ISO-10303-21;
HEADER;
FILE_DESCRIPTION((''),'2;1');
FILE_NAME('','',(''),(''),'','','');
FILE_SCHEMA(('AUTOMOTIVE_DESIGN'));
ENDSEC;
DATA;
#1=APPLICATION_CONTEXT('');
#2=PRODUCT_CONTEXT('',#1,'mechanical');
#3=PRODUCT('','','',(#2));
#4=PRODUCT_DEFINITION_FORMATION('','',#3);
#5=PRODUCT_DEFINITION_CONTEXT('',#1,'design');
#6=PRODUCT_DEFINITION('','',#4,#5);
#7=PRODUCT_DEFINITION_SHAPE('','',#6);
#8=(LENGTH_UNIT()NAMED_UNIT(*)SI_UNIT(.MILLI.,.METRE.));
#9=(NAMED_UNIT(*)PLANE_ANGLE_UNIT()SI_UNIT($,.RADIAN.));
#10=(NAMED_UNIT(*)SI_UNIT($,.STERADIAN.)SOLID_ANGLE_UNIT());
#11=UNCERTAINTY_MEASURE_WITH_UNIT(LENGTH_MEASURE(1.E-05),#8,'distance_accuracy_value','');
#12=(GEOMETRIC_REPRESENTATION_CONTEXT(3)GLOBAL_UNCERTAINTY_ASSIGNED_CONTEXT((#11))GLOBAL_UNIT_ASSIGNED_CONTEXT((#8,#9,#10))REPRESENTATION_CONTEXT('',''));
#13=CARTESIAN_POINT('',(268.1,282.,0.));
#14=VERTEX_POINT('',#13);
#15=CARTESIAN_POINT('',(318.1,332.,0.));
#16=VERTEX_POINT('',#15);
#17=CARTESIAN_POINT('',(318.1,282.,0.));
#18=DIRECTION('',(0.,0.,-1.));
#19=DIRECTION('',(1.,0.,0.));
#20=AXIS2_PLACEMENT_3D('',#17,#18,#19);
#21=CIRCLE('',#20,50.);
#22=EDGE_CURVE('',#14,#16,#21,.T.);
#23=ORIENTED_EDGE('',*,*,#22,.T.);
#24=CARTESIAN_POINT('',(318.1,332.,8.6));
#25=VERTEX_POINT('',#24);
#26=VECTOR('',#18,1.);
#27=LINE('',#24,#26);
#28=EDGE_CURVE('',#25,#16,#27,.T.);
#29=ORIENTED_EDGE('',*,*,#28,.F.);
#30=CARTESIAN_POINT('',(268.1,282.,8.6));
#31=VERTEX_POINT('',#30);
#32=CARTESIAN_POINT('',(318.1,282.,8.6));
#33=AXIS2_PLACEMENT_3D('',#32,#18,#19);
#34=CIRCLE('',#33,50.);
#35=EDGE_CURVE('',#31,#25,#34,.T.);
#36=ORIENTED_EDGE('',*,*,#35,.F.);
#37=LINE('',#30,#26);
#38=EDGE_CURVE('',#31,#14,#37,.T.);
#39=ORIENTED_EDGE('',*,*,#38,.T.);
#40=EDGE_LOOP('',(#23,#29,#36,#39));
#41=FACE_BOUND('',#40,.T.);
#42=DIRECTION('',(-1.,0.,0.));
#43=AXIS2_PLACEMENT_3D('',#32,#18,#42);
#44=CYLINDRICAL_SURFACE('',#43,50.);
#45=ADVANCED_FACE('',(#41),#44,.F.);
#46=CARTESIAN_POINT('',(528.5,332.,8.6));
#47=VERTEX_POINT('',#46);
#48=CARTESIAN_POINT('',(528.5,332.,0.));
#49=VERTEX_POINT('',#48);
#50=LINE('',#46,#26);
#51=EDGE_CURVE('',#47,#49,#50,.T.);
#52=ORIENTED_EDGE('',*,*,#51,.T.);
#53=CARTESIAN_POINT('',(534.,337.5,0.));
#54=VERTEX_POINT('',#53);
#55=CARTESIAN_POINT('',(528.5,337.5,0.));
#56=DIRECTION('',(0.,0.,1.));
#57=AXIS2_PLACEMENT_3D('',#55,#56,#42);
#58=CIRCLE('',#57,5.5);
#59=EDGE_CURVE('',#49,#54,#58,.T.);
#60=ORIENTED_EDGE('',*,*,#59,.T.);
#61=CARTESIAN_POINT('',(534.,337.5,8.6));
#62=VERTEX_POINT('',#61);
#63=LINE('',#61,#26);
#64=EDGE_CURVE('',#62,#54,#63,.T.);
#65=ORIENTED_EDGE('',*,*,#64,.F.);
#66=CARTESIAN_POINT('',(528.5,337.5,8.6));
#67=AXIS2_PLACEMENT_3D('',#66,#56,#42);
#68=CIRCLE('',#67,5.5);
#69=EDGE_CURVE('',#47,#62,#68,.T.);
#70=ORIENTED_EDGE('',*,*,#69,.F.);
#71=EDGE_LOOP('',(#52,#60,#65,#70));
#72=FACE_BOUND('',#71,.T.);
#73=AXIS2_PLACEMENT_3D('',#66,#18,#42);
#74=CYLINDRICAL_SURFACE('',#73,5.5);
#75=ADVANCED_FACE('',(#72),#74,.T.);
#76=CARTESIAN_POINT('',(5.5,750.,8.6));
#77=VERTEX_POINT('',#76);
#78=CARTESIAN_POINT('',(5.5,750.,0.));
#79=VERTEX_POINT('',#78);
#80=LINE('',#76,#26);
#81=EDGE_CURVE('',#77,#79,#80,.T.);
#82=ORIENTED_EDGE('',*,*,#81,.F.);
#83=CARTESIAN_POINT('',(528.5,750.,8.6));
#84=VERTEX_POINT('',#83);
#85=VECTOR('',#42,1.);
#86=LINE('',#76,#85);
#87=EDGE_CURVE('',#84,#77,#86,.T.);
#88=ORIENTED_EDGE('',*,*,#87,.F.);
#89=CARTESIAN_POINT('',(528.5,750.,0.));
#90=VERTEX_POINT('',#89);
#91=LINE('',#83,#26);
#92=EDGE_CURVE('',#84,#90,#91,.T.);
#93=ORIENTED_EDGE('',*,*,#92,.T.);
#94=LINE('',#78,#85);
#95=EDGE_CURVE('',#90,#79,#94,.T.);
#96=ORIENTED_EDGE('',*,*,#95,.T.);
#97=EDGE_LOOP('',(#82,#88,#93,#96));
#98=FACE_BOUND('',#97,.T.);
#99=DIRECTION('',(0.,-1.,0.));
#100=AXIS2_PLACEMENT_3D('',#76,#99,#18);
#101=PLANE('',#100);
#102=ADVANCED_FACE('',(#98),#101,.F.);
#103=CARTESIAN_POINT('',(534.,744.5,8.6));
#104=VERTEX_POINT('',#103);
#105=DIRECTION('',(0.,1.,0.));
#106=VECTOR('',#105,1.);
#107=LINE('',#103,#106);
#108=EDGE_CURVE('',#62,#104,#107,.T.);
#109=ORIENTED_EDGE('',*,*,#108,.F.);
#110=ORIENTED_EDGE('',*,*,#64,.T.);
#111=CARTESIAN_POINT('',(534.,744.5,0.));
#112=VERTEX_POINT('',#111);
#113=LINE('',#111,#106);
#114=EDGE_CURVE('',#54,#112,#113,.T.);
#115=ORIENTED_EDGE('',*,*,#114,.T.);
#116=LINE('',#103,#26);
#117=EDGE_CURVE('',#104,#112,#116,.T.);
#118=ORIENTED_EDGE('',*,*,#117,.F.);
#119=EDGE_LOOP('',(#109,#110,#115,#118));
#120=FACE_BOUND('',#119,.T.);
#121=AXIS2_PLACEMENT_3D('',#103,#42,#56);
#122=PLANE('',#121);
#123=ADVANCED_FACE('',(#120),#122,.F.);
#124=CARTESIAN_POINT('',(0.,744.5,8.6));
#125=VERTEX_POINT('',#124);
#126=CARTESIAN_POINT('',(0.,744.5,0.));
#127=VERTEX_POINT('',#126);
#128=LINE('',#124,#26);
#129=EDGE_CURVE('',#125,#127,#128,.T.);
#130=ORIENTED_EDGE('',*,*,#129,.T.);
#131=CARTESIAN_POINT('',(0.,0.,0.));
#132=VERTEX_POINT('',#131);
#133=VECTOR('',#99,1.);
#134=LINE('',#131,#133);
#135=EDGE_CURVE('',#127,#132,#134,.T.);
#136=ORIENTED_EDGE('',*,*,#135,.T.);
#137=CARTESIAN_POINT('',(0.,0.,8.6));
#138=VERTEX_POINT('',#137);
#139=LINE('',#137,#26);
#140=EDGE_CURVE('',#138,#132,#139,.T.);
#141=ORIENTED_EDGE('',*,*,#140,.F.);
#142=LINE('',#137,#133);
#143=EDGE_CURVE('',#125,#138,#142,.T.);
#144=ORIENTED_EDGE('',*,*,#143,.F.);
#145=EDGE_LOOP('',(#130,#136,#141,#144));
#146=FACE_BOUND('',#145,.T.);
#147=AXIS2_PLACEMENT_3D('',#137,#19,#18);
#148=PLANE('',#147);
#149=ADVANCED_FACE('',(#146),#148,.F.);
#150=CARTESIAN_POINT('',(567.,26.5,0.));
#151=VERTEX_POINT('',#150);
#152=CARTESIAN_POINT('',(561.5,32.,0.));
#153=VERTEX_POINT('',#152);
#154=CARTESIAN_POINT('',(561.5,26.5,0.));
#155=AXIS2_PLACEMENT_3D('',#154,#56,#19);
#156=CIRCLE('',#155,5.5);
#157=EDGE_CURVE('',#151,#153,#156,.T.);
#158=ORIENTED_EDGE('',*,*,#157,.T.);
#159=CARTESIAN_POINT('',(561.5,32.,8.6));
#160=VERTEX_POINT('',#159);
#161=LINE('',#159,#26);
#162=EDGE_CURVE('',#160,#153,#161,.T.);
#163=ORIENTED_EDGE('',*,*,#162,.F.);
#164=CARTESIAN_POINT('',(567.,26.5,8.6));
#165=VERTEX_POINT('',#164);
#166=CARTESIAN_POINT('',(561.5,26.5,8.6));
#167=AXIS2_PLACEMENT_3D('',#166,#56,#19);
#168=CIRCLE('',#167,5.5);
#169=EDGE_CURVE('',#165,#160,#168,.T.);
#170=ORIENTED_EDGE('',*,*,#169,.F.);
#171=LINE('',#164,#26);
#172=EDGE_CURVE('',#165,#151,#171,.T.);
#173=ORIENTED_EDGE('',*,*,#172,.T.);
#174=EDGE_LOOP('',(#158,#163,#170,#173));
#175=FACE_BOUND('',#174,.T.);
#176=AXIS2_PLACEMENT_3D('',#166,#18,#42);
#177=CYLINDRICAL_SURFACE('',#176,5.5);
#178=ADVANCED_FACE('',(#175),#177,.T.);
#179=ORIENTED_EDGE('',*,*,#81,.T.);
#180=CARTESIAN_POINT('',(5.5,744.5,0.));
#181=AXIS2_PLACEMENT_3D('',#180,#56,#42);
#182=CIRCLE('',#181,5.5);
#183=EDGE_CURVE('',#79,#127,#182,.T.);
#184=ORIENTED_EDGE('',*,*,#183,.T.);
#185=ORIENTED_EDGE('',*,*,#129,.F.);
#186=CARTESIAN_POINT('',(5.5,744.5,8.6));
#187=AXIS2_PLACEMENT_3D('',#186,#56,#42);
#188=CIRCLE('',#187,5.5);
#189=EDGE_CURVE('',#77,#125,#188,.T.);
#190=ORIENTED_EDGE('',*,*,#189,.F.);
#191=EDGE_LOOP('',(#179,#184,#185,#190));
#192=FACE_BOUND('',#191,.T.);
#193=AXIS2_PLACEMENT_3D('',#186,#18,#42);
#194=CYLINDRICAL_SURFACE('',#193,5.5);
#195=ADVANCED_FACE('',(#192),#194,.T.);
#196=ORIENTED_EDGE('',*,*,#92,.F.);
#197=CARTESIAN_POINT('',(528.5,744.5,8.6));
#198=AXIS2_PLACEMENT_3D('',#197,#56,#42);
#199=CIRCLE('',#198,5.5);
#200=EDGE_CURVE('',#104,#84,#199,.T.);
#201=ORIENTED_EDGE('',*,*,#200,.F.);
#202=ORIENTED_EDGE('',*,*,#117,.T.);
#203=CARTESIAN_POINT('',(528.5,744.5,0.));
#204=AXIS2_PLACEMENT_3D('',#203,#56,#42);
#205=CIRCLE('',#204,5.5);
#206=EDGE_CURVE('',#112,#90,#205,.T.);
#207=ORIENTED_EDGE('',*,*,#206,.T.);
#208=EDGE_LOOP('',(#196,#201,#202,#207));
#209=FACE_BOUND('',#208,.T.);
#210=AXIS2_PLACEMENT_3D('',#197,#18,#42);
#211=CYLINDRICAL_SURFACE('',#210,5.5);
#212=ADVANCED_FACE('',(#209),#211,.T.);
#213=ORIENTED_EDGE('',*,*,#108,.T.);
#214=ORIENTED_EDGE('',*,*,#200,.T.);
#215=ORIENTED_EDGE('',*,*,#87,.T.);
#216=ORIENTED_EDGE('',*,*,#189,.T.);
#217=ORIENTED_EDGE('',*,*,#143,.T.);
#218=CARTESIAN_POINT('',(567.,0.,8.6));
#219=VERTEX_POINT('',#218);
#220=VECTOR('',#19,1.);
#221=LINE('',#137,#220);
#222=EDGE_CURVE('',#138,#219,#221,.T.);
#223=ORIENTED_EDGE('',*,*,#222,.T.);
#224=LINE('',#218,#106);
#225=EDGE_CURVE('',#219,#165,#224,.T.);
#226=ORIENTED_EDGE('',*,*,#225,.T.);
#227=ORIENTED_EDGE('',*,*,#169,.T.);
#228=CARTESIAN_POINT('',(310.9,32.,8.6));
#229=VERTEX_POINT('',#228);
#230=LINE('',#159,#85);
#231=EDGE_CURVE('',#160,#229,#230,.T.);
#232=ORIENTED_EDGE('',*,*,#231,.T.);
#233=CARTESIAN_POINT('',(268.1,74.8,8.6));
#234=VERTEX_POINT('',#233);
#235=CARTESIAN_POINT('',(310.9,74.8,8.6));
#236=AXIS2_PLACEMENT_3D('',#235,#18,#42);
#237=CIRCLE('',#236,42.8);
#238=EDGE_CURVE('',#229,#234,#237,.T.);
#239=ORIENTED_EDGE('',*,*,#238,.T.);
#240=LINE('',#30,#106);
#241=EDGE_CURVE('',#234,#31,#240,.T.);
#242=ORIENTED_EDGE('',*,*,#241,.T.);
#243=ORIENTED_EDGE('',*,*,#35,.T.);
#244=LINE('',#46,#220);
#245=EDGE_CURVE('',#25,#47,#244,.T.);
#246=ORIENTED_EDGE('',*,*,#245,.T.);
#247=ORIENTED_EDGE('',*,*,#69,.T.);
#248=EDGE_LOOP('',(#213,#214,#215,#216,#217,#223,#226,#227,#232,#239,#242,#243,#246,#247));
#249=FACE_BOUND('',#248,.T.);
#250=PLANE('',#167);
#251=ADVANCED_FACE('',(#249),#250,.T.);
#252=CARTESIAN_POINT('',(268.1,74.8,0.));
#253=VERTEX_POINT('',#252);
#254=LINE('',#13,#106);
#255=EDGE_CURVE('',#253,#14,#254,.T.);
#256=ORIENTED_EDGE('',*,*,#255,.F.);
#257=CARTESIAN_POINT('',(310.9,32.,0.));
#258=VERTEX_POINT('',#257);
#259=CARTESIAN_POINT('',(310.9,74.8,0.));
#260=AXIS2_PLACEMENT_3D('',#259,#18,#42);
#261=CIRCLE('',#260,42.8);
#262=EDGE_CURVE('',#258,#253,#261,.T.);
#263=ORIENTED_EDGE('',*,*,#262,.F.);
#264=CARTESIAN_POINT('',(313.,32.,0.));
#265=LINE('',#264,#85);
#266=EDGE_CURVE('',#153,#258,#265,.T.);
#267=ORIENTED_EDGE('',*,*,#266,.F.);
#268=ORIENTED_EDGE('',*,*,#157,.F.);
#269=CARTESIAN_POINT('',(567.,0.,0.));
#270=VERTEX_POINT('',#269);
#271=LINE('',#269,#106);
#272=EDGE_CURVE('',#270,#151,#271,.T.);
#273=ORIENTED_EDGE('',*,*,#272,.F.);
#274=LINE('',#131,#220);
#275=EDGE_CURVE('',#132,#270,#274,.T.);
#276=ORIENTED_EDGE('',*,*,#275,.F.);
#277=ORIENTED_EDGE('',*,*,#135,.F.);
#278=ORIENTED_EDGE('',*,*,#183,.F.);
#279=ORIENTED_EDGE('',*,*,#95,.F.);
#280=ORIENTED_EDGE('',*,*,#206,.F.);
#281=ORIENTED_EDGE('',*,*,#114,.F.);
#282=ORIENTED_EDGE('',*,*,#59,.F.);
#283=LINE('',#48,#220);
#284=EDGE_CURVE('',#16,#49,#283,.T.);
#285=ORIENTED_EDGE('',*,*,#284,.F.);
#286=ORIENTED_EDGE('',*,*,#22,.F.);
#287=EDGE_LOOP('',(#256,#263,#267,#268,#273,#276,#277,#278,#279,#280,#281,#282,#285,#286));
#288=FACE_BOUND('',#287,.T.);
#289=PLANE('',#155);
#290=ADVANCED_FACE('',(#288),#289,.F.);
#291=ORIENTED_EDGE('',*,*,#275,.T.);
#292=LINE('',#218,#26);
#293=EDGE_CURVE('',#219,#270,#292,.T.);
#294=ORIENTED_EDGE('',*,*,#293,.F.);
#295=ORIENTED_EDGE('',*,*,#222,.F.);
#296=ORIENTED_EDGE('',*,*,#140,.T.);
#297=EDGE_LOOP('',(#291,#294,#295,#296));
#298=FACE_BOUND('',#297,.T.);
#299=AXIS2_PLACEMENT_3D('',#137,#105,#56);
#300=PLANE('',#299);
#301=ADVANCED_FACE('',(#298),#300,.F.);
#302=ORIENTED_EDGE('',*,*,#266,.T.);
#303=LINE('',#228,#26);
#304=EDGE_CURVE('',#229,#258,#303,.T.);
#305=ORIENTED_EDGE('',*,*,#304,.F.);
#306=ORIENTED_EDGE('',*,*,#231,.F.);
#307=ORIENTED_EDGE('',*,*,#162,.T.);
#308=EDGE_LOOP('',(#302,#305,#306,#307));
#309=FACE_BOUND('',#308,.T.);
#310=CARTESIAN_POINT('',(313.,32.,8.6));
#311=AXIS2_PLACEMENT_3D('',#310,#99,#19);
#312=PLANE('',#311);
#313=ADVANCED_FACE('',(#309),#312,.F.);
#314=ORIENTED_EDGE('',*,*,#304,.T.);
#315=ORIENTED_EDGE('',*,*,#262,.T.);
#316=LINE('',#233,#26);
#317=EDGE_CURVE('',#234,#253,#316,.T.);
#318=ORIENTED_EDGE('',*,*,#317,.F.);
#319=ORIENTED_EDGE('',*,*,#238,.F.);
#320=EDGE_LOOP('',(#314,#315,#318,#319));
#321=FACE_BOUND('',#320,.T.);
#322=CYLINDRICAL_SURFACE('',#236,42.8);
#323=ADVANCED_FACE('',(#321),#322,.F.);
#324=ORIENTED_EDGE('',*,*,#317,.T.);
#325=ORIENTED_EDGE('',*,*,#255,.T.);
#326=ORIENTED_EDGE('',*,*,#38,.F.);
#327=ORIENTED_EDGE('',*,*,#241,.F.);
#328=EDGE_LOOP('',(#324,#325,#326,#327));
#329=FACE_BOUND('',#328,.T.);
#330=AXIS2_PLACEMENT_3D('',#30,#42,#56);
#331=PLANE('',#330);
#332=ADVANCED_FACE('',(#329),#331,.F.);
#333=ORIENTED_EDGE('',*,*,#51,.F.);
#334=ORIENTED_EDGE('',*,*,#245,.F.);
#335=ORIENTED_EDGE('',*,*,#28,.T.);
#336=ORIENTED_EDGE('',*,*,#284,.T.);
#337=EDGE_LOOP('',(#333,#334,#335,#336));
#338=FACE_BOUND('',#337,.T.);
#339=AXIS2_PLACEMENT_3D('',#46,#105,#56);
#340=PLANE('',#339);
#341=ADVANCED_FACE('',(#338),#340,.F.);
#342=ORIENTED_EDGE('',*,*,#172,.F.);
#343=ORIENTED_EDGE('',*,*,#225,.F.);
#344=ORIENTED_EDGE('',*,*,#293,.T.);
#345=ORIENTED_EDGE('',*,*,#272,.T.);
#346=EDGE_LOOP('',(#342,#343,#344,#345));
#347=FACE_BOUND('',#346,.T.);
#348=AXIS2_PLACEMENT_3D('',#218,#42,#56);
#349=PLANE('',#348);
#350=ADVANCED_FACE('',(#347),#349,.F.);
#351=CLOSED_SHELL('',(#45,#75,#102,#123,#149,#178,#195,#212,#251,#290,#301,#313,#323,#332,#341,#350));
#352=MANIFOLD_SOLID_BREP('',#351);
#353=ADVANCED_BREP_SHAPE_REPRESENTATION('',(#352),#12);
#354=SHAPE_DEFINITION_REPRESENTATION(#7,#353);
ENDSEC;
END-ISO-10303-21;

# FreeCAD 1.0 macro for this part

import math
import FreeCAD as App
import Part
import Sketcher
Q = App.Units.Quantity

doc = App.newDocument("Part")
body = doc.addObject("PartDesign::Body", "Body")

# Sketch on XY plane
sketch1 = body.newObject("Sketcher::SketchObject", "Sketch")
sketch1.AttachmentSupport = (doc.getObject("XY_Plane"), [""])
sketch1.MapMode = "FlatFace"
sketch1.addGeometry([
    Part.LineSegment(App.Vector(0, 744.5, 0), App.Vector(0, 0, 0)),  # 0
    Part.LineSegment(App.Vector(0, 0, 0), App.Vector(567, 0, 0)),  # 1
    Part.LineSegment(App.Vector(567, 0, 0), App.Vector(567, 26.5, 0)),  # 2
    Part.ArcOfCircle(Part.Circle(App.Vector(561.5, 26.5, 0), App.Vector(0, 0, 1), 5.5), math.radians(0), math.radians(90)),  # 3
    Part.LineSegment(App.Vector(561.5, 32, 0), App.Vector(310.9, 32, 0)),  # 4
    Part.ArcOfCircle(Part.Circle(App.Vector(310.9, 74.8, 0), App.Vector(0, 0, 1), 42.8), math.radians(180), math.radians(270)),  # 5
    Part.LineSegment(App.Vector(268.1, 74.8, 0), App.Vector(268.1, 282, 0)),  # 6
    Part.ArcOfCircle(Part.Circle(App.Vector(318.1, 282, 0), App.Vector(0, 0, 1), 50), math.radians(90), math.radians(180)),  # 7
    Part.LineSegment(App.Vector(318.1, 332, 0), App.Vector(528.5, 332, 0)),  # 8
    Part.ArcOfCircle(Part.Circle(App.Vector(528.5, 337.5, 0), App.Vector(0, 0, 1), 5.5), math.radians(-90), math.radians(0)),  # 9
    Part.LineSegment(App.Vector(534, 337.5, 0), App.Vector(534, 744.5, 0)),  # 10
    Part.ArcOfCircle(Part.Circle(App.Vector(528.5, 744.5, 0), App.Vector(0, 0, 1), 5.5), math.radians(0), math.radians(90)),  # 11
    Part.LineSegment(App.Vector(528.5, 750, 0), App.Vector(5.5, 750, 0)),  # 12
    Part.ArcOfCircle(Part.Circle(App.Vector(5.5, 744.5, 0), App.Vector(0, 0, 1), 5.5), math.radians(90), math.radians(180)),  # 13
], False)
sketch1.addConstraint([
    Sketcher.Constraint("Coincident", 0, 2, 1, 1),
    Sketcher.Constraint("Coincident", 1, 2, 2, 1),
    Sketcher.Constraint("Tangent", 2, 2, 3, 1),
    Sketcher.Constraint("Tangent", 3, 2, 4, 1),
    Sketcher.Constraint("Tangent", 4, 2, 5, 2),
    Sketcher.Constraint("Tangent", 5, 1, 6, 1),
    Sketcher.Constraint("Tangent", 6, 2, 7, 2),
    Sketcher.Constraint("Tangent", 7, 1, 8, 1),
    Sketcher.Constraint("Tangent", 8, 2, 9, 1),
    Sketcher.Constraint("Tangent", 9, 2, 10, 1),
    Sketcher.Constraint("Tangent", 10, 2, 11, 1),
    Sketcher.Constraint("Tangent", 11, 2, 12, 1),
    Sketcher.Constraint("Tangent", 12, 2, 13, 1),
    Sketcher.Constraint("Tangent", 13, 2, 0, 1),
    Sketcher.Constraint("Vertical", 0),
    Sketcher.Constraint("Horizontal", 1),
    Sketcher.Constraint("Vertical", 2),
    Sketcher.Constraint("Horizontal", 4),
    Sketcher.Constraint("Vertical", 6),
    Sketcher.Constraint("Horizontal", 8),
    Sketcher.Constraint("Vertical", 10),
    Sketcher.Constraint("Horizontal", 12),
    Sketcher.Constraint("Coincident", 0, 2, -1, 1),
    Sketcher.Constraint("Equal", 3, 9),
    Sketcher.Constraint("Equal", 9, 11),
    Sketcher.Constraint("Equal", 11, 13),
    Sketcher.Constraint("Radius", 7, Q("50 mm")),
    Sketcher.Constraint("Radius", 3, Q("5.5 mm")),
    Sketcher.Constraint("Radius", 5, Q("42.8 mm")),
    Sketcher.Constraint("DistanceX", 1, 1, 1, 2, Q("567 mm")),
    Sketcher.Constraint("DistanceX", 12, 2, 12, 1, Q("523 mm")),
    Sketcher.Constraint("DistanceY", 10, 1, 10, 2, Q("407 mm")),
    Sketcher.Constraint("DistanceX", 4, 2, 4, 1, Q("250.6 mm")),
    Sketcher.Constraint("DistanceY", 0, 2, 0, 1, Q("744.5 mm")),
    Sketcher.Constraint("DistanceY", 2, 1, 2, 2, Q("26.5 mm")),
])
pad1 = body.newObject("PartDesign::Pad", "Pad")
pad1.Profile = sketch1
pad1.Length = 8.6

doc.recompute()
